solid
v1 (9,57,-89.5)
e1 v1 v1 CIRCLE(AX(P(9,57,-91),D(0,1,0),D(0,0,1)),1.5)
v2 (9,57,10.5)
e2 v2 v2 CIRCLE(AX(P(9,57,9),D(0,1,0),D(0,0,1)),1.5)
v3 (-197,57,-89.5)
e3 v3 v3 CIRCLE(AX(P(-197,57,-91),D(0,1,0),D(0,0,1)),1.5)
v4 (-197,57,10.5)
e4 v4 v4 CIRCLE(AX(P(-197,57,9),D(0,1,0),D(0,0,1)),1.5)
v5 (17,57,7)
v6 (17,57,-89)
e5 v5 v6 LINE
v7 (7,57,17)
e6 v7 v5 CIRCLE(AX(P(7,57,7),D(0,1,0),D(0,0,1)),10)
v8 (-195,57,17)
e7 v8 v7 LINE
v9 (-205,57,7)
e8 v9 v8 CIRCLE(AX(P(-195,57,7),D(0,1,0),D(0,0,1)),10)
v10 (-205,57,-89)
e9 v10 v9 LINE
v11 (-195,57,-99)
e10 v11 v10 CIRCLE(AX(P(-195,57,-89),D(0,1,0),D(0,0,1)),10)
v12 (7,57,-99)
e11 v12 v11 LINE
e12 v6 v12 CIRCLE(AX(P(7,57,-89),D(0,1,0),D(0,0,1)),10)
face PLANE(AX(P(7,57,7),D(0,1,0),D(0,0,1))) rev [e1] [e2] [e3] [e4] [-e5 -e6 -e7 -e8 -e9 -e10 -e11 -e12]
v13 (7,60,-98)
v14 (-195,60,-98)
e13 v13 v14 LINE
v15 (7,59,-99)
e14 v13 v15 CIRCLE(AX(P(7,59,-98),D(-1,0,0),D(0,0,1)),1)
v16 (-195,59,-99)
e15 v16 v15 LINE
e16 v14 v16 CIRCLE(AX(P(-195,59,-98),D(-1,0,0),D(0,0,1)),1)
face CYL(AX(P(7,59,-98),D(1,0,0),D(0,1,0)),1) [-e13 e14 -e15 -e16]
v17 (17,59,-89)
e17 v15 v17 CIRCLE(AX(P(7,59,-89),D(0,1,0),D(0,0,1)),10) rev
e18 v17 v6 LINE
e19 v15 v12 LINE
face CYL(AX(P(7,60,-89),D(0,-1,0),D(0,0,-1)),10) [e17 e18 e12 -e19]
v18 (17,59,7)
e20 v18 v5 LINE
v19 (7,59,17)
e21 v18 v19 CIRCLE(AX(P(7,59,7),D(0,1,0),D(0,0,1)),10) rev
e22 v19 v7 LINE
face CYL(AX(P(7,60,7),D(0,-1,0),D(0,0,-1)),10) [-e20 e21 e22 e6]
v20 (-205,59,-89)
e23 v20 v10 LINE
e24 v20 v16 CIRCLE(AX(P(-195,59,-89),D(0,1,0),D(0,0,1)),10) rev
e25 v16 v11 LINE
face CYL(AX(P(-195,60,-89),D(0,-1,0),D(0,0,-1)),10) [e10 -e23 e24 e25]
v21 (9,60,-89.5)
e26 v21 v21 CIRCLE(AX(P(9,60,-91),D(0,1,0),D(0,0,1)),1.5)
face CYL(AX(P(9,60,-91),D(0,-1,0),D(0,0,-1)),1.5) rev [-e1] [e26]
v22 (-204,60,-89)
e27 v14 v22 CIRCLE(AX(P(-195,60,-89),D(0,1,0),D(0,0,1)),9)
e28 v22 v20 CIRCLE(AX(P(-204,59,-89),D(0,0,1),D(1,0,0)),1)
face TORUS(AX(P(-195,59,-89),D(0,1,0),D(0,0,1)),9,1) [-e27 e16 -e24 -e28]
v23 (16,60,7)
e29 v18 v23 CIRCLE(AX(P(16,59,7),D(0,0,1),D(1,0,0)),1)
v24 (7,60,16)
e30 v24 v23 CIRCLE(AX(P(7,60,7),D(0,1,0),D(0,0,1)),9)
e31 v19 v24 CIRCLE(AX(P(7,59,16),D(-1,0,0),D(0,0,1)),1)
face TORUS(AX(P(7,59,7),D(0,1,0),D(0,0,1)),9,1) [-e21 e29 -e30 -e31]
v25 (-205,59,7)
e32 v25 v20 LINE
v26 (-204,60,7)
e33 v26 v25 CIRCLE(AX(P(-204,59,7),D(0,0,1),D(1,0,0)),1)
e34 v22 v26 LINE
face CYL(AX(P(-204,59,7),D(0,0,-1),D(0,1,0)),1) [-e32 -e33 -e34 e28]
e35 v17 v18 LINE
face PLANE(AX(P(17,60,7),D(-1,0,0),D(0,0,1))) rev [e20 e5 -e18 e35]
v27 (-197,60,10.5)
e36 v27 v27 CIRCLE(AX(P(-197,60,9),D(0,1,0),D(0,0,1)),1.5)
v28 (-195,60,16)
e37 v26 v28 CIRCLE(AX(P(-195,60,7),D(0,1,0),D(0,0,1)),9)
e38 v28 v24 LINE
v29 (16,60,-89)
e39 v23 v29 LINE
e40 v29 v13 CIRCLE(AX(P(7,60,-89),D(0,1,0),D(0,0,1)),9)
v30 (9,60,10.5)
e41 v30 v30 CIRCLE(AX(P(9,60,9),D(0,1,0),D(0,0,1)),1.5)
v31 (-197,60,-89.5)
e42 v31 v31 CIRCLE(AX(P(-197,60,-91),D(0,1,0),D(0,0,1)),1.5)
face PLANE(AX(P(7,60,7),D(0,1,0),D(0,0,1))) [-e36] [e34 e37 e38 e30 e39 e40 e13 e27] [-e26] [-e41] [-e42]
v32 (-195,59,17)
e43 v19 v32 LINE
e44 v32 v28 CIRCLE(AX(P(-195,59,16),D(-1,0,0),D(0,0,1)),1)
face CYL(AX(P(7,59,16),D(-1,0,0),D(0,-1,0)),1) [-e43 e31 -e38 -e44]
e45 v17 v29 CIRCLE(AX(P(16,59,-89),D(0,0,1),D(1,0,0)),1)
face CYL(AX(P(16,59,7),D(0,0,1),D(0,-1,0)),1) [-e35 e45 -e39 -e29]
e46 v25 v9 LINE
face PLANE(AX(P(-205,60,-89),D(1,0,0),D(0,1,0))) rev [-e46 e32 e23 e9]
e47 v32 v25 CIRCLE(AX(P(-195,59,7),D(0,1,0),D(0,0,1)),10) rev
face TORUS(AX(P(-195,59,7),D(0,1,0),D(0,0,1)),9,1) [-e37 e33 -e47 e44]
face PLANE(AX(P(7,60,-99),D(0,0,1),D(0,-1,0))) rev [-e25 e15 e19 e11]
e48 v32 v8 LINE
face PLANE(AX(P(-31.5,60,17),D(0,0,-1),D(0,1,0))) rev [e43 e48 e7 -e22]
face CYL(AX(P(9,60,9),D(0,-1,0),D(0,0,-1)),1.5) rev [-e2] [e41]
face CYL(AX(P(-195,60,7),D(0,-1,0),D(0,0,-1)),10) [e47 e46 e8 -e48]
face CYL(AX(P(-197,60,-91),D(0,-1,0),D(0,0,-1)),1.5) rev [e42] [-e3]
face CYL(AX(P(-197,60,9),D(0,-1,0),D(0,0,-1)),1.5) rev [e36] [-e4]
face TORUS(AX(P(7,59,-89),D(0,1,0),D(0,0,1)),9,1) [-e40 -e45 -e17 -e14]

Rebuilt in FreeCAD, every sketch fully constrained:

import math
import FreeCAD as App
import Part
import Sketcher
Q = App.Units.Quantity


def edges_at(feature, points):
    """Names of the edges that pass closest to the given points."""
    edges = feature.Shape.Edges
    near = lambda p: min(range(len(edges)), key=lambda i: edges[i].distToShape(Part.Vertex(*p))[0])
    return sorted({f"Edge{near(p) + 1}" for p in points})

doc = App.newDocument("Part")
body = doc.addObject("PartDesign::Body", "Body")

sketch1 = body.newObject("Sketcher::SketchObject", "Sketch")
sketch1.AttachmentSupport = (doc.getObject("XZ_Plane"), [""])
sketch1.MapMode = "FlatFace"
sketch1.AttachmentOffset = App.Placement(App.Vector(0, 0, -57), App.Rotation())
sketch1.addGeometry([
    Part.ArcOfCircle(Part.Circle(App.Vector(7, 7, 0), App.Vector(0, 0, 1), 10), math.radians(0), math.radians(90)),
    Part.LineSegment(App.Vector(17, 7, 0), App.Vector(17, -89, 0)),
    Part.ArcOfCircle(Part.Circle(App.Vector(7, -89, 0), App.Vector(0, 0, 1), 10), math.radians(-90), math.radians(0)),
    Part.LineSegment(App.Vector(7, -99, 0), App.Vector(-195, -99, 0)),
    Part.ArcOfCircle(Part.Circle(App.Vector(-195, -89, 0), App.Vector(0, 0, 1), 10), math.radians(180), math.radians(270)),
    Part.LineSegment(App.Vector(-205, -89, 0), App.Vector(-205, 7, 0)),
    Part.ArcOfCircle(Part.Circle(App.Vector(-195, 7, 0), App.Vector(0, 0, 1), 10), math.radians(90), math.radians(180)),
    Part.LineSegment(App.Vector(-195, 17, 0), App.Vector(7, 17, 0)),
    Part.Circle(App.Vector(-197, 9, 0), App.Vector(0, 0, 1), 1.5),
    Part.Circle(App.Vector(9, 9, 0), App.Vector(0, 0, 1), 1.5),
    Part.Circle(App.Vector(-197, -91, 0), App.Vector(0, 0, 1), 1.5),
    Part.Circle(App.Vector(9, -91, 0), App.Vector(0, 0, 1), 1.5),
], False)
sketch1.addConstraint([
    Sketcher.Constraint("Tangent", 0, 1, 1, 1),
    Sketcher.Constraint("Tangent", 1, 2, 2, 2),
    Sketcher.Constraint("Tangent", 2, 1, 3, 1),
    Sketcher.Constraint("Tangent", 3, 2, 4, 2),
    Sketcher.Constraint("Tangent", 4, 1, 5, 1),
    Sketcher.Constraint("Tangent", 5, 2, 6, 2),
    Sketcher.Constraint("Tangent", 6, 1, 7, 1),
    Sketcher.Constraint("Tangent", 7, 2, 0, 2),
    Sketcher.Constraint("Vertical", 1),
    Sketcher.Constraint("Horizontal", 3),
    Sketcher.Constraint("Vertical", 5),
    Sketcher.Constraint("Horizontal", 7),
    Sketcher.Constraint("Equal", 0, 2),
    Sketcher.Constraint("Equal", 2, 4),
    Sketcher.Constraint("Equal", 4, 6),
    Sketcher.Constraint("Equal", 8, 9),
    Sketcher.Constraint("Equal", 9, 10),
    Sketcher.Constraint("Equal", 10, 11),
    Sketcher.Constraint("Horizontal", 8, 3, 9, 3),
    Sketcher.Constraint("Horizontal", 10, 3, 11, 3),
    Sketcher.Constraint("Vertical", 8, 3, 10, 3),
    Sketcher.Constraint("Vertical", 9, 3, 11, 3),
    Sketcher.Constraint("Diameter", 8, Q("3 mm")),
    Sketcher.Constraint("Radius", 0, Q("10 mm")),
    Sketcher.Constraint("DistanceX", 3, 2, 3, 1, Q("202 mm")),
    Sketcher.Constraint("DistanceY", 1, 2, 1, 1, Q("96 mm")),
    Sketcher.Constraint("DistanceX", -1, 1, 0, 3, Q("7 mm")),
    Sketcher.Constraint("DistanceY", -1, 1, 0, 3, Q("7 mm")),
    Sketcher.Constraint("DistanceX", 8, 3, -1, 1, Q("197 mm")),
    Sketcher.Constraint("DistanceY", -1, 1, 8, 3, Q("9 mm")),
    Sketcher.Constraint("DistanceX", -1, 1, 9, 3, Q("9 mm")),
    Sketcher.Constraint("DistanceY", 10, 3, -1, 1, Q("91 mm")),
])
pad1 = body.newObject("PartDesign::Pad", "Pad")
pad1.Profile = sketch1
pad1.Length = 3
pad1.Reversed = True
doc.recompute()

fillet = body.newObject("PartDesign::Fillet", "Fillet")
fillet.Base = (pad1, edges_at(pad1, [
    (17, 60, -41),
    (14.071, 60, -96.071),
    (-94, 60, -99),
    (-202.071, 60, -96.071),
    (-205, 60, -41),
    (-202.071, 60, 14.071),
    (-94, 60, 17),
    (14.071, 60, 14.071),
]))
fillet.Radius = 1

doc.recompute()
